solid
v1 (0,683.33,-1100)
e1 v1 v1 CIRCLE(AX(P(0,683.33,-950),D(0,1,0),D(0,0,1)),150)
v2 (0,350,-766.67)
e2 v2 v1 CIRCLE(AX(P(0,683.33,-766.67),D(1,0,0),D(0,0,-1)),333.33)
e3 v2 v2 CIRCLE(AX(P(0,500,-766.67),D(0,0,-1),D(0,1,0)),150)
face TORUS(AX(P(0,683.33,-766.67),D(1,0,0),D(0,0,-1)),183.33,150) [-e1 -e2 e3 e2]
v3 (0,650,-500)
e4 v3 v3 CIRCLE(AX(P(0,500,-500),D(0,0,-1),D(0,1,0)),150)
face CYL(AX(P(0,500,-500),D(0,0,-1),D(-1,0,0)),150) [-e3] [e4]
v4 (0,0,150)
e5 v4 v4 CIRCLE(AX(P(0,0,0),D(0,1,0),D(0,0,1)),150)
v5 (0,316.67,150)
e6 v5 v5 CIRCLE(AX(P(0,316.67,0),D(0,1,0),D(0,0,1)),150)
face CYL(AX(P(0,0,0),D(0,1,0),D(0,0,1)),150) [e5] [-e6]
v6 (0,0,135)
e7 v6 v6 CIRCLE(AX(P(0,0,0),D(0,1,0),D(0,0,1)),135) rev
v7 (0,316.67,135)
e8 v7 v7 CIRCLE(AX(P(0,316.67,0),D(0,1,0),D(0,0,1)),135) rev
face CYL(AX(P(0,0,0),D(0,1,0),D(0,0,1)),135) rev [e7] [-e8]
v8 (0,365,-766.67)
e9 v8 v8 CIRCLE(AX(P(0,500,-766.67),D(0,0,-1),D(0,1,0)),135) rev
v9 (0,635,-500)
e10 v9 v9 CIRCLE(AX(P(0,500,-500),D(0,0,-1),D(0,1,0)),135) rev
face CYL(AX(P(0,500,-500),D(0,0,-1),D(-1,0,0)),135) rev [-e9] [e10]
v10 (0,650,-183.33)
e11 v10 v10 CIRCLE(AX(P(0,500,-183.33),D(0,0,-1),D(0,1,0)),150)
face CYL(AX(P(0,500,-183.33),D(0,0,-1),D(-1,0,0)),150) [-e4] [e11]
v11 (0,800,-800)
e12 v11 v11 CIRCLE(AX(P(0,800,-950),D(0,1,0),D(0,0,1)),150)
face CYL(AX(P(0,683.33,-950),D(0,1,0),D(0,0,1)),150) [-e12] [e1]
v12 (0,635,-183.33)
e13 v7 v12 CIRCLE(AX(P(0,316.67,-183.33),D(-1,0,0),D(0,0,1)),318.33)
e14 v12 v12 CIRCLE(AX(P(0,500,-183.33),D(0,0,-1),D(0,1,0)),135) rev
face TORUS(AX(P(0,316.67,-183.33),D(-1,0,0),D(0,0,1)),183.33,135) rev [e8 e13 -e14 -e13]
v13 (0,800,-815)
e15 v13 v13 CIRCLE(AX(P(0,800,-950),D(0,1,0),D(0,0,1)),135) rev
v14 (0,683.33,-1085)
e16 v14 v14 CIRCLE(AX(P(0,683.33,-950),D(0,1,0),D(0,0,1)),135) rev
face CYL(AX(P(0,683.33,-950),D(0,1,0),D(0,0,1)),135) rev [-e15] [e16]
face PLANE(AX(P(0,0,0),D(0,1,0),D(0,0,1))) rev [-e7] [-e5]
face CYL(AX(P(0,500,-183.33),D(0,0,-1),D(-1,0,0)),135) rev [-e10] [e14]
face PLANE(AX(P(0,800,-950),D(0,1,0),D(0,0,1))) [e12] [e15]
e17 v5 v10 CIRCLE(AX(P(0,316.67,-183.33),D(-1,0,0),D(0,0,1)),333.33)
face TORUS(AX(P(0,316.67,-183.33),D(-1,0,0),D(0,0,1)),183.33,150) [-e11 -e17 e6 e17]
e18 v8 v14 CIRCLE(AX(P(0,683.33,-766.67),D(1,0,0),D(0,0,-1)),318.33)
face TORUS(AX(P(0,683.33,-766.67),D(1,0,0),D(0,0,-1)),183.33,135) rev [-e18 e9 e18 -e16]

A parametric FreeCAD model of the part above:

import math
import FreeCAD as App
import Part
import Sketcher

V = App.Vector

doc = App.newDocument("Part")
body = doc.addObject("PartDesign::Body", "Body")

# Sketch on XZ plane
sketch1 = doc.addObject("Sketcher::SketchObject", "Sketch")
body.addObject(sketch1)
sketch1.AttachmentSupport = (doc.XZ_Plane, [""])
sketch1.MapMode = "FlatFace"
sketch1.addGeometry([
    Part.Circle(V(0, 0, 0), V(0, 0, 1), 150),
    Part.Circle(V(0, 0, 0), V(0, 0, 1), 135),
], False)
sketch1.addConstraint([
    Sketcher.Constraint("Coincident", 0, 3, -1, 1),
    Sketcher.Constraint("Coincident", 1, 3, -1, 1),
    Sketcher.Constraint("Diameter", 0, 300.0),
    Sketcher.Constraint("Diameter", 1, 270.0),
])

# Sketch on YZ plane
sketch2 = doc.addObject("Sketcher::SketchObject", "Sketch001")
body.addObject(sketch2)
sketch2.AttachmentSupport = (doc.YZ_Plane, [""])
sketch2.MapMode = "FlatFace"
sketch2.addGeometry([
    Part.LineSegment(V(0, 0, 0), V(316.67, 0, 0)),  # 0
    Part.ArcOfCircle(Part.Circle(V(316.67, -183.33, 0), V(0, 0, 1), 183.33), math.radians(0), math.radians(90)),  # 1
    Part.LineSegment(V(500, -183.33, 0), V(500, -766.67, 0)),  # 2
    Part.ArcOfCircle(Part.Circle(V(683.33, -766.67, 0), V(0, 0, 1), 183.33), math.radians(180), math.radians(270)),  # 3
    Part.LineSegment(V(683.33, -950, 0), V(800, -950, 0)),  # 4
], False)
sketch2.addConstraint([
    Sketcher.Constraint("Tangent", 0, 2, 1, 2),
    Sketcher.Constraint("Tangent", 1, 1, 2, 1),
    Sketcher.Constraint("Tangent", 2, 2, 3, 1),
    Sketcher.Constraint("Tangent", 3, 2, 4, 1),
    Sketcher.Constraint("Horizontal", 0),
    Sketcher.Constraint("Vertical", 2),
    Sketcher.Constraint("Horizontal", 4),
    Sketcher.Constraint("Coincident", 0, 1, -1, 1),
    Sketcher.Constraint("Equal", 1, 3),
    Sketcher.Constraint("Radius", 1, 183.33),
    Sketcher.Constraint("DistanceX", -1, 1, 1, 1, 500.0),
    Sketcher.Constraint("DistanceY", 3, 2, -1, 1, 950.0),
    Sketcher.Constraint("DistanceX", -1, 1, 4, 2, 800.0),
])
doc.recompute()

additivepipe = doc.addObject("PartDesign::AdditivePipe", "AdditivePipe")
body.addObject(additivepipe)
additivepipe.Profile = sketch1
additivepipe.Spine = (sketch2, ["Edge1", "Edge2", "Edge3", "Edge4", "Edge5"])

doc.recompute()
